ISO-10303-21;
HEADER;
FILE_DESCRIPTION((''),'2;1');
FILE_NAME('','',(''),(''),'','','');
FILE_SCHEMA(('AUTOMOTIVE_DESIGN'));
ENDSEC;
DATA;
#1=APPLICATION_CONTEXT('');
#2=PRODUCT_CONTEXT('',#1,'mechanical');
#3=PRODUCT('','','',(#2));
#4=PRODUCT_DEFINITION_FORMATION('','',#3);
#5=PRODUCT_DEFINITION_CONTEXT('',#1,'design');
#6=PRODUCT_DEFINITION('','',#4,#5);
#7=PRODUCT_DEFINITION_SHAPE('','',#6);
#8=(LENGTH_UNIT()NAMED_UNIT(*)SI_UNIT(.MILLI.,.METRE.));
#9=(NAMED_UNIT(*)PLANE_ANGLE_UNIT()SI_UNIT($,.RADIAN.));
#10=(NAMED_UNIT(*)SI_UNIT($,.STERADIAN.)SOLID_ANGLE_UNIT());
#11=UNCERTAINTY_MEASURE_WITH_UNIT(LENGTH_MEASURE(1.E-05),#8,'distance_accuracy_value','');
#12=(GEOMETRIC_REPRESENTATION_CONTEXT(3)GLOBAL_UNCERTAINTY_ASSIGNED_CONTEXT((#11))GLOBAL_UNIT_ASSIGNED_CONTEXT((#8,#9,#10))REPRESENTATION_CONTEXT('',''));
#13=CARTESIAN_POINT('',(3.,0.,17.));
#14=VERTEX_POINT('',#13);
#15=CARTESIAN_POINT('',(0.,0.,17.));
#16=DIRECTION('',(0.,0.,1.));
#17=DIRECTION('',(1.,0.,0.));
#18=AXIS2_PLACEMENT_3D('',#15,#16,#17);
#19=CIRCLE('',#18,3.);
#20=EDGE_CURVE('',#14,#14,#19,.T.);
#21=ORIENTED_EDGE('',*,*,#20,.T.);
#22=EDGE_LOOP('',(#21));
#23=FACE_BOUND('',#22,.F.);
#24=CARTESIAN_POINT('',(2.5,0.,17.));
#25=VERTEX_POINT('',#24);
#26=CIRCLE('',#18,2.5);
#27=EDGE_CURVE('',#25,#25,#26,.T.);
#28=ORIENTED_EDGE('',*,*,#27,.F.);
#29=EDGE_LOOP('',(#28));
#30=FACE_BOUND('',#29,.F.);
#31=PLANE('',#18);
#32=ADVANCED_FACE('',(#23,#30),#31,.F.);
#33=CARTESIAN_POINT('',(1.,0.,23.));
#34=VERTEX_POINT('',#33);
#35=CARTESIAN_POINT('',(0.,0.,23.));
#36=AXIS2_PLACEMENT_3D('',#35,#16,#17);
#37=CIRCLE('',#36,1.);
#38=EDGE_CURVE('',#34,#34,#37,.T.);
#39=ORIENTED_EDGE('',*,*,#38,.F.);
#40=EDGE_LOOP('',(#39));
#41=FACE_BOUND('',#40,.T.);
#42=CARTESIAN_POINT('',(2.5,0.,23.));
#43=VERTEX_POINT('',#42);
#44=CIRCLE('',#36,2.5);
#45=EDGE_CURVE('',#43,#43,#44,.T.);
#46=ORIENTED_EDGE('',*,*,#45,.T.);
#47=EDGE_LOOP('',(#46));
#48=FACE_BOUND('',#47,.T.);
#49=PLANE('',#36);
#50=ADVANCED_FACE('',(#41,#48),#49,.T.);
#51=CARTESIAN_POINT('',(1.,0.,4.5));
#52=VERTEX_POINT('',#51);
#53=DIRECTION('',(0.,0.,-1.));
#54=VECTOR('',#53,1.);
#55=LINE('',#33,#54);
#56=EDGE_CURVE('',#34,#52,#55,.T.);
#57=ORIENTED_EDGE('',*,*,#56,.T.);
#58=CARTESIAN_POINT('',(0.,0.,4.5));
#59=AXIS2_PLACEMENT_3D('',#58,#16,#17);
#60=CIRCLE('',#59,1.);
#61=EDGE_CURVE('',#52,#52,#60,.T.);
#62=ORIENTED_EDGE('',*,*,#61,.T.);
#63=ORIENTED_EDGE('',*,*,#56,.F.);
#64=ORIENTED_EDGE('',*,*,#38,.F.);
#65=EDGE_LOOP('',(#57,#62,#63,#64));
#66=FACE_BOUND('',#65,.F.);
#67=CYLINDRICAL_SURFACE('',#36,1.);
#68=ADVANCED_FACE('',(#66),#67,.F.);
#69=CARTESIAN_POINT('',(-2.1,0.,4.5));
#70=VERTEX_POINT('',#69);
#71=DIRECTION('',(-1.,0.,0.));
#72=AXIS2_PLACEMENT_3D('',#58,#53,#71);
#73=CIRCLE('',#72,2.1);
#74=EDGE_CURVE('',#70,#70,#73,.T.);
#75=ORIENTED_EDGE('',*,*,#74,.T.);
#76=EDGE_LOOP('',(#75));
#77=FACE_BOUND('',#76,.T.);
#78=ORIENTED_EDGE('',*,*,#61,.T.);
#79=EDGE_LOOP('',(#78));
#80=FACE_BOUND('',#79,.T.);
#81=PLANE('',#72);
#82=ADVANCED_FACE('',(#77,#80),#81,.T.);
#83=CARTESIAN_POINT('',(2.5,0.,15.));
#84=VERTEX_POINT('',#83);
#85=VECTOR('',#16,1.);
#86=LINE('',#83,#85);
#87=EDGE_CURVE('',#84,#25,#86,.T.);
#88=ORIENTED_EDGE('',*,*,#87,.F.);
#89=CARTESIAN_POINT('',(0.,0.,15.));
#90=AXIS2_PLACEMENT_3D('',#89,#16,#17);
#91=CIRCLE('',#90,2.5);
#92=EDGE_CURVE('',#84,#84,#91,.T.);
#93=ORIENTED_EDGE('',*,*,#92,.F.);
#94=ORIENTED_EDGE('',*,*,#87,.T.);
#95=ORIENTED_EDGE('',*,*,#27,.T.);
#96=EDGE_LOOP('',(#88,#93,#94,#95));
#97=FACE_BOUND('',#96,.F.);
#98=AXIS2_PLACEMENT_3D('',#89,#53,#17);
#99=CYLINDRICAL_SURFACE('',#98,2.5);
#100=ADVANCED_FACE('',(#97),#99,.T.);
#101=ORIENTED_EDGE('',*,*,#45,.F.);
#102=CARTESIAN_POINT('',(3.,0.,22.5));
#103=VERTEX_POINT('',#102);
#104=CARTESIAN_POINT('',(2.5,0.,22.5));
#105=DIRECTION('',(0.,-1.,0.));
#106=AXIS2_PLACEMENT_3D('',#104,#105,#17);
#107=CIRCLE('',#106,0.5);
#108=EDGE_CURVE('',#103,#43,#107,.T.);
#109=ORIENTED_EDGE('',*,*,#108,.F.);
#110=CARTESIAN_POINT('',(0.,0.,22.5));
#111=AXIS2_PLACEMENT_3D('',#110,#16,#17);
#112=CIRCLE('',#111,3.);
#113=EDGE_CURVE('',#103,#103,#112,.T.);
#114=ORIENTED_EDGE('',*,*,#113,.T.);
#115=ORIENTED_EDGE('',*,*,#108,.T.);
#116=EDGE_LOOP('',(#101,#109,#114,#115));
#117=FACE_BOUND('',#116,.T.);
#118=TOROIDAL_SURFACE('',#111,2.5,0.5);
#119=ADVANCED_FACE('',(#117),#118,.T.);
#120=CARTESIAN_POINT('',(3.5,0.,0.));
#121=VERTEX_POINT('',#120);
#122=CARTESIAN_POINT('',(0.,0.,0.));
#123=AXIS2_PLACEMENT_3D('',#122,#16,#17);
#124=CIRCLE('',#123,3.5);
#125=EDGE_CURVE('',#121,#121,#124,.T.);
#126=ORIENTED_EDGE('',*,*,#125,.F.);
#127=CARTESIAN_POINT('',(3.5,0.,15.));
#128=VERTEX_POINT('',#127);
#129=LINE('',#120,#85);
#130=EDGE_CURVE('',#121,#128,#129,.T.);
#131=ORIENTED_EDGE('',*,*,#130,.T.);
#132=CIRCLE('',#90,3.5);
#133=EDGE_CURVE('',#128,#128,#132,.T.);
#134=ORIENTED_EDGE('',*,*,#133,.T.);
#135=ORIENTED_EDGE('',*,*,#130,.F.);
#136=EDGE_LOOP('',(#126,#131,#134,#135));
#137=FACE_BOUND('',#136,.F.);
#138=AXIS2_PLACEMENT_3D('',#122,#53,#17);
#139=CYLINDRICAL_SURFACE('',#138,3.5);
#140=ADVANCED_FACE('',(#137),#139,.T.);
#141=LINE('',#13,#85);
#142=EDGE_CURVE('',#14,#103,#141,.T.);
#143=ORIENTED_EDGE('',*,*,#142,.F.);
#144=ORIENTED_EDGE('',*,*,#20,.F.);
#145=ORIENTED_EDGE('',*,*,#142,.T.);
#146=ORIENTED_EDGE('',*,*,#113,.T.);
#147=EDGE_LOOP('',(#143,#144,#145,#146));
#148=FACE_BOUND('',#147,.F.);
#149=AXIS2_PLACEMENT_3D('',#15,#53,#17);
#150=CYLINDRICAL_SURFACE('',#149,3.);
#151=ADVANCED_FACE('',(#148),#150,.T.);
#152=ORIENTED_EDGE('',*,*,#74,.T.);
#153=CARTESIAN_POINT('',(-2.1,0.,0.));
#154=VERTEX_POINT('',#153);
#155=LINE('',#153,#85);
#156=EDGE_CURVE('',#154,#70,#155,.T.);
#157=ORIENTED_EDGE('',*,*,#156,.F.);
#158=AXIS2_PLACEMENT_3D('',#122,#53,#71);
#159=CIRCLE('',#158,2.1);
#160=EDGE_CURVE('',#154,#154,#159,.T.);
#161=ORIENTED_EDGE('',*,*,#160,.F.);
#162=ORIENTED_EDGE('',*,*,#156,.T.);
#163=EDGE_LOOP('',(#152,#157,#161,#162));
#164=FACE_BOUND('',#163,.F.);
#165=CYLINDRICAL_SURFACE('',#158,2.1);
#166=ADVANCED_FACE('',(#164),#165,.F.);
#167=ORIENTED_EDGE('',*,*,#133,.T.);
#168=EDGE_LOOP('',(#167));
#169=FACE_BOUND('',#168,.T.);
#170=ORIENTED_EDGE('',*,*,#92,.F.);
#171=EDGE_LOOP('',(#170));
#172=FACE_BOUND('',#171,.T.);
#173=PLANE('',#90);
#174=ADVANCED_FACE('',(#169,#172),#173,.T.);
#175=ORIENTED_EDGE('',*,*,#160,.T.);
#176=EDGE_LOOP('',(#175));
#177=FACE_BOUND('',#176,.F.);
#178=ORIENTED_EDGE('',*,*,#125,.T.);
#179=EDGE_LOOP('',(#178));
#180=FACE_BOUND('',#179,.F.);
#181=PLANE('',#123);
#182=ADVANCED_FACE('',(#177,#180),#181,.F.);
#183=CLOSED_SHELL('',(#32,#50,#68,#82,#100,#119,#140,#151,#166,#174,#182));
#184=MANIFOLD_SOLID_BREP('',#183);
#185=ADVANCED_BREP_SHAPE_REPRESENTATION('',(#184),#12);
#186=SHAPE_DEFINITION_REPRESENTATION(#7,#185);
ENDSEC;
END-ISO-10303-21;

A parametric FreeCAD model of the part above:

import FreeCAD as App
import Part
import Sketcher

V = App.Vector


def edges_at(feature, points):
    """Names of the edges that pass closest to the given points."""
    edges = feature.Shape.Edges
    near = lambda p: min(range(len(edges)), key=lambda i: edges[i].distToShape(Part.Vertex(*p))[0])
    return sorted({f"Edge{near(p) + 1}" for p in points})

doc = App.newDocument("Part")
body = doc.addObject("PartDesign::Body", "Body")

# Sketch on XY plane
sketch1 = doc.addObject("Sketcher::SketchObject", "Sketch")
body.addObject(sketch1)
sketch1.AttachmentSupport = (doc.XY_Plane, [""])
sketch1.MapMode = "FlatFace"
sketch1.addGeometry(Part.Circle(V(0, 0, 0), V(0, 0, 1), 3.5), False)
sketch1.addConstraint(Sketcher.Constraint("Coincident", 0, 3, -1, 1))
sketch1.addConstraint(Sketcher.Constraint("Diameter", 0, 7.0))
pad1 = doc.addObject("PartDesign::Pad", "Pad")
body.addObject(pad1)
pad1.Profile = sketch1
pad1.Length = 15

# Sketch on XY plane
sketch2 = doc.addObject("Sketcher::SketchObject", "Sketch001")
body.addObject(sketch2)
sketch2.AttachmentSupport = (doc.XY_Plane, [""])
sketch2.MapMode = "FlatFace"
sketch2.AttachmentOffset = App.Placement(V(0, 0, 15), App.Rotation())
sketch2.addGeometry(Part.Circle(V(0, 0, 0), V(0, 0, 1), 2.5), False)
sketch2.addConstraint(Sketcher.Constraint("Coincident", 0, 3, -1, 1))
sketch2.addConstraint(Sketcher.Constraint("Diameter", 0, 5.0))
pad2 = doc.addObject("PartDesign::Pad", "Pad001")
body.addObject(pad2)
pad2.Profile = sketch2
pad2.Length = 2

# Sketch on XY plane
sketch3 = doc.addObject("Sketcher::SketchObject", "Sketch002")
body.addObject(sketch3)
sketch3.AttachmentSupport = (doc.XY_Plane, [""])
sketch3.MapMode = "FlatFace"
sketch3.AttachmentOffset = App.Placement(V(0, 0, 17), App.Rotation())
sketch3.addGeometry(Part.Circle(V(0, 0, 0), V(0, 0, 1), 3), False)
sketch3.addConstraint(Sketcher.Constraint("Coincident", 0, 3, -1, 1))
sketch3.addConstraint(Sketcher.Constraint("Diameter", 0, 6.0))
pad3 = doc.addObject("PartDesign::Pad", "Pad002")
body.addObject(pad3)
pad3.Profile = sketch3
pad3.Length = 6

# Sketch on XY plane
sketch4 = doc.addObject("Sketcher::SketchObject", "Sketch003")
body.addObject(sketch4)
sketch4.AttachmentSupport = (doc.XY_Plane, [""])
sketch4.MapMode = "FlatFace"
sketch4.AttachmentOffset = App.Placement(V(0, 0, 23), App.Rotation())
sketch4.addGeometry(Part.Circle(V(0, 0, 0), V(0, 0, 1), 1), False)
sketch4.addConstraint(Sketcher.Constraint("Coincident", 0, 3, -1, 1))
sketch4.addConstraint(Sketcher.Constraint("Diameter", 0, 2.0))
pocket1 = doc.addObject("PartDesign::Pocket", "Pocket")
body.addObject(pocket1)
pocket1.Profile = sketch4
pocket1.Type = "ThroughAll"
doc.recompute()

fillet = doc.addObject("PartDesign::Fillet", "Fillet")
body.addObject(fillet)
fillet.Base = (pocket1, edges_at(pocket1, [(-3, 0, 23)]))
fillet.Radius = 0.5

# Sketch on XY plane
sketch5 = doc.addObject("Sketcher::SketchObject", "Sketch004")
body.addObject(sketch5)
sketch5.AttachmentSupport = (doc.XY_Plane, [""])
sketch5.MapMode = "FlatFace"
sketch5.addGeometry(Part.Circle(V(0, 0, 0), V(0, 0, 1), 2.1), False)
sketch5.addConstraint(Sketcher.Constraint("Coincident", 0, 3, -1, 1))
sketch5.addConstraint(Sketcher.Constraint("Diameter", 0, 4.2))
pocket2 = doc.addObject("PartDesign::Pocket", "Pocket001")
body.addObject(pocket2)
pocket2.Profile = sketch5
pocket2.Length = 4.5
pocket2.Reversed = True

doc.recompute()
